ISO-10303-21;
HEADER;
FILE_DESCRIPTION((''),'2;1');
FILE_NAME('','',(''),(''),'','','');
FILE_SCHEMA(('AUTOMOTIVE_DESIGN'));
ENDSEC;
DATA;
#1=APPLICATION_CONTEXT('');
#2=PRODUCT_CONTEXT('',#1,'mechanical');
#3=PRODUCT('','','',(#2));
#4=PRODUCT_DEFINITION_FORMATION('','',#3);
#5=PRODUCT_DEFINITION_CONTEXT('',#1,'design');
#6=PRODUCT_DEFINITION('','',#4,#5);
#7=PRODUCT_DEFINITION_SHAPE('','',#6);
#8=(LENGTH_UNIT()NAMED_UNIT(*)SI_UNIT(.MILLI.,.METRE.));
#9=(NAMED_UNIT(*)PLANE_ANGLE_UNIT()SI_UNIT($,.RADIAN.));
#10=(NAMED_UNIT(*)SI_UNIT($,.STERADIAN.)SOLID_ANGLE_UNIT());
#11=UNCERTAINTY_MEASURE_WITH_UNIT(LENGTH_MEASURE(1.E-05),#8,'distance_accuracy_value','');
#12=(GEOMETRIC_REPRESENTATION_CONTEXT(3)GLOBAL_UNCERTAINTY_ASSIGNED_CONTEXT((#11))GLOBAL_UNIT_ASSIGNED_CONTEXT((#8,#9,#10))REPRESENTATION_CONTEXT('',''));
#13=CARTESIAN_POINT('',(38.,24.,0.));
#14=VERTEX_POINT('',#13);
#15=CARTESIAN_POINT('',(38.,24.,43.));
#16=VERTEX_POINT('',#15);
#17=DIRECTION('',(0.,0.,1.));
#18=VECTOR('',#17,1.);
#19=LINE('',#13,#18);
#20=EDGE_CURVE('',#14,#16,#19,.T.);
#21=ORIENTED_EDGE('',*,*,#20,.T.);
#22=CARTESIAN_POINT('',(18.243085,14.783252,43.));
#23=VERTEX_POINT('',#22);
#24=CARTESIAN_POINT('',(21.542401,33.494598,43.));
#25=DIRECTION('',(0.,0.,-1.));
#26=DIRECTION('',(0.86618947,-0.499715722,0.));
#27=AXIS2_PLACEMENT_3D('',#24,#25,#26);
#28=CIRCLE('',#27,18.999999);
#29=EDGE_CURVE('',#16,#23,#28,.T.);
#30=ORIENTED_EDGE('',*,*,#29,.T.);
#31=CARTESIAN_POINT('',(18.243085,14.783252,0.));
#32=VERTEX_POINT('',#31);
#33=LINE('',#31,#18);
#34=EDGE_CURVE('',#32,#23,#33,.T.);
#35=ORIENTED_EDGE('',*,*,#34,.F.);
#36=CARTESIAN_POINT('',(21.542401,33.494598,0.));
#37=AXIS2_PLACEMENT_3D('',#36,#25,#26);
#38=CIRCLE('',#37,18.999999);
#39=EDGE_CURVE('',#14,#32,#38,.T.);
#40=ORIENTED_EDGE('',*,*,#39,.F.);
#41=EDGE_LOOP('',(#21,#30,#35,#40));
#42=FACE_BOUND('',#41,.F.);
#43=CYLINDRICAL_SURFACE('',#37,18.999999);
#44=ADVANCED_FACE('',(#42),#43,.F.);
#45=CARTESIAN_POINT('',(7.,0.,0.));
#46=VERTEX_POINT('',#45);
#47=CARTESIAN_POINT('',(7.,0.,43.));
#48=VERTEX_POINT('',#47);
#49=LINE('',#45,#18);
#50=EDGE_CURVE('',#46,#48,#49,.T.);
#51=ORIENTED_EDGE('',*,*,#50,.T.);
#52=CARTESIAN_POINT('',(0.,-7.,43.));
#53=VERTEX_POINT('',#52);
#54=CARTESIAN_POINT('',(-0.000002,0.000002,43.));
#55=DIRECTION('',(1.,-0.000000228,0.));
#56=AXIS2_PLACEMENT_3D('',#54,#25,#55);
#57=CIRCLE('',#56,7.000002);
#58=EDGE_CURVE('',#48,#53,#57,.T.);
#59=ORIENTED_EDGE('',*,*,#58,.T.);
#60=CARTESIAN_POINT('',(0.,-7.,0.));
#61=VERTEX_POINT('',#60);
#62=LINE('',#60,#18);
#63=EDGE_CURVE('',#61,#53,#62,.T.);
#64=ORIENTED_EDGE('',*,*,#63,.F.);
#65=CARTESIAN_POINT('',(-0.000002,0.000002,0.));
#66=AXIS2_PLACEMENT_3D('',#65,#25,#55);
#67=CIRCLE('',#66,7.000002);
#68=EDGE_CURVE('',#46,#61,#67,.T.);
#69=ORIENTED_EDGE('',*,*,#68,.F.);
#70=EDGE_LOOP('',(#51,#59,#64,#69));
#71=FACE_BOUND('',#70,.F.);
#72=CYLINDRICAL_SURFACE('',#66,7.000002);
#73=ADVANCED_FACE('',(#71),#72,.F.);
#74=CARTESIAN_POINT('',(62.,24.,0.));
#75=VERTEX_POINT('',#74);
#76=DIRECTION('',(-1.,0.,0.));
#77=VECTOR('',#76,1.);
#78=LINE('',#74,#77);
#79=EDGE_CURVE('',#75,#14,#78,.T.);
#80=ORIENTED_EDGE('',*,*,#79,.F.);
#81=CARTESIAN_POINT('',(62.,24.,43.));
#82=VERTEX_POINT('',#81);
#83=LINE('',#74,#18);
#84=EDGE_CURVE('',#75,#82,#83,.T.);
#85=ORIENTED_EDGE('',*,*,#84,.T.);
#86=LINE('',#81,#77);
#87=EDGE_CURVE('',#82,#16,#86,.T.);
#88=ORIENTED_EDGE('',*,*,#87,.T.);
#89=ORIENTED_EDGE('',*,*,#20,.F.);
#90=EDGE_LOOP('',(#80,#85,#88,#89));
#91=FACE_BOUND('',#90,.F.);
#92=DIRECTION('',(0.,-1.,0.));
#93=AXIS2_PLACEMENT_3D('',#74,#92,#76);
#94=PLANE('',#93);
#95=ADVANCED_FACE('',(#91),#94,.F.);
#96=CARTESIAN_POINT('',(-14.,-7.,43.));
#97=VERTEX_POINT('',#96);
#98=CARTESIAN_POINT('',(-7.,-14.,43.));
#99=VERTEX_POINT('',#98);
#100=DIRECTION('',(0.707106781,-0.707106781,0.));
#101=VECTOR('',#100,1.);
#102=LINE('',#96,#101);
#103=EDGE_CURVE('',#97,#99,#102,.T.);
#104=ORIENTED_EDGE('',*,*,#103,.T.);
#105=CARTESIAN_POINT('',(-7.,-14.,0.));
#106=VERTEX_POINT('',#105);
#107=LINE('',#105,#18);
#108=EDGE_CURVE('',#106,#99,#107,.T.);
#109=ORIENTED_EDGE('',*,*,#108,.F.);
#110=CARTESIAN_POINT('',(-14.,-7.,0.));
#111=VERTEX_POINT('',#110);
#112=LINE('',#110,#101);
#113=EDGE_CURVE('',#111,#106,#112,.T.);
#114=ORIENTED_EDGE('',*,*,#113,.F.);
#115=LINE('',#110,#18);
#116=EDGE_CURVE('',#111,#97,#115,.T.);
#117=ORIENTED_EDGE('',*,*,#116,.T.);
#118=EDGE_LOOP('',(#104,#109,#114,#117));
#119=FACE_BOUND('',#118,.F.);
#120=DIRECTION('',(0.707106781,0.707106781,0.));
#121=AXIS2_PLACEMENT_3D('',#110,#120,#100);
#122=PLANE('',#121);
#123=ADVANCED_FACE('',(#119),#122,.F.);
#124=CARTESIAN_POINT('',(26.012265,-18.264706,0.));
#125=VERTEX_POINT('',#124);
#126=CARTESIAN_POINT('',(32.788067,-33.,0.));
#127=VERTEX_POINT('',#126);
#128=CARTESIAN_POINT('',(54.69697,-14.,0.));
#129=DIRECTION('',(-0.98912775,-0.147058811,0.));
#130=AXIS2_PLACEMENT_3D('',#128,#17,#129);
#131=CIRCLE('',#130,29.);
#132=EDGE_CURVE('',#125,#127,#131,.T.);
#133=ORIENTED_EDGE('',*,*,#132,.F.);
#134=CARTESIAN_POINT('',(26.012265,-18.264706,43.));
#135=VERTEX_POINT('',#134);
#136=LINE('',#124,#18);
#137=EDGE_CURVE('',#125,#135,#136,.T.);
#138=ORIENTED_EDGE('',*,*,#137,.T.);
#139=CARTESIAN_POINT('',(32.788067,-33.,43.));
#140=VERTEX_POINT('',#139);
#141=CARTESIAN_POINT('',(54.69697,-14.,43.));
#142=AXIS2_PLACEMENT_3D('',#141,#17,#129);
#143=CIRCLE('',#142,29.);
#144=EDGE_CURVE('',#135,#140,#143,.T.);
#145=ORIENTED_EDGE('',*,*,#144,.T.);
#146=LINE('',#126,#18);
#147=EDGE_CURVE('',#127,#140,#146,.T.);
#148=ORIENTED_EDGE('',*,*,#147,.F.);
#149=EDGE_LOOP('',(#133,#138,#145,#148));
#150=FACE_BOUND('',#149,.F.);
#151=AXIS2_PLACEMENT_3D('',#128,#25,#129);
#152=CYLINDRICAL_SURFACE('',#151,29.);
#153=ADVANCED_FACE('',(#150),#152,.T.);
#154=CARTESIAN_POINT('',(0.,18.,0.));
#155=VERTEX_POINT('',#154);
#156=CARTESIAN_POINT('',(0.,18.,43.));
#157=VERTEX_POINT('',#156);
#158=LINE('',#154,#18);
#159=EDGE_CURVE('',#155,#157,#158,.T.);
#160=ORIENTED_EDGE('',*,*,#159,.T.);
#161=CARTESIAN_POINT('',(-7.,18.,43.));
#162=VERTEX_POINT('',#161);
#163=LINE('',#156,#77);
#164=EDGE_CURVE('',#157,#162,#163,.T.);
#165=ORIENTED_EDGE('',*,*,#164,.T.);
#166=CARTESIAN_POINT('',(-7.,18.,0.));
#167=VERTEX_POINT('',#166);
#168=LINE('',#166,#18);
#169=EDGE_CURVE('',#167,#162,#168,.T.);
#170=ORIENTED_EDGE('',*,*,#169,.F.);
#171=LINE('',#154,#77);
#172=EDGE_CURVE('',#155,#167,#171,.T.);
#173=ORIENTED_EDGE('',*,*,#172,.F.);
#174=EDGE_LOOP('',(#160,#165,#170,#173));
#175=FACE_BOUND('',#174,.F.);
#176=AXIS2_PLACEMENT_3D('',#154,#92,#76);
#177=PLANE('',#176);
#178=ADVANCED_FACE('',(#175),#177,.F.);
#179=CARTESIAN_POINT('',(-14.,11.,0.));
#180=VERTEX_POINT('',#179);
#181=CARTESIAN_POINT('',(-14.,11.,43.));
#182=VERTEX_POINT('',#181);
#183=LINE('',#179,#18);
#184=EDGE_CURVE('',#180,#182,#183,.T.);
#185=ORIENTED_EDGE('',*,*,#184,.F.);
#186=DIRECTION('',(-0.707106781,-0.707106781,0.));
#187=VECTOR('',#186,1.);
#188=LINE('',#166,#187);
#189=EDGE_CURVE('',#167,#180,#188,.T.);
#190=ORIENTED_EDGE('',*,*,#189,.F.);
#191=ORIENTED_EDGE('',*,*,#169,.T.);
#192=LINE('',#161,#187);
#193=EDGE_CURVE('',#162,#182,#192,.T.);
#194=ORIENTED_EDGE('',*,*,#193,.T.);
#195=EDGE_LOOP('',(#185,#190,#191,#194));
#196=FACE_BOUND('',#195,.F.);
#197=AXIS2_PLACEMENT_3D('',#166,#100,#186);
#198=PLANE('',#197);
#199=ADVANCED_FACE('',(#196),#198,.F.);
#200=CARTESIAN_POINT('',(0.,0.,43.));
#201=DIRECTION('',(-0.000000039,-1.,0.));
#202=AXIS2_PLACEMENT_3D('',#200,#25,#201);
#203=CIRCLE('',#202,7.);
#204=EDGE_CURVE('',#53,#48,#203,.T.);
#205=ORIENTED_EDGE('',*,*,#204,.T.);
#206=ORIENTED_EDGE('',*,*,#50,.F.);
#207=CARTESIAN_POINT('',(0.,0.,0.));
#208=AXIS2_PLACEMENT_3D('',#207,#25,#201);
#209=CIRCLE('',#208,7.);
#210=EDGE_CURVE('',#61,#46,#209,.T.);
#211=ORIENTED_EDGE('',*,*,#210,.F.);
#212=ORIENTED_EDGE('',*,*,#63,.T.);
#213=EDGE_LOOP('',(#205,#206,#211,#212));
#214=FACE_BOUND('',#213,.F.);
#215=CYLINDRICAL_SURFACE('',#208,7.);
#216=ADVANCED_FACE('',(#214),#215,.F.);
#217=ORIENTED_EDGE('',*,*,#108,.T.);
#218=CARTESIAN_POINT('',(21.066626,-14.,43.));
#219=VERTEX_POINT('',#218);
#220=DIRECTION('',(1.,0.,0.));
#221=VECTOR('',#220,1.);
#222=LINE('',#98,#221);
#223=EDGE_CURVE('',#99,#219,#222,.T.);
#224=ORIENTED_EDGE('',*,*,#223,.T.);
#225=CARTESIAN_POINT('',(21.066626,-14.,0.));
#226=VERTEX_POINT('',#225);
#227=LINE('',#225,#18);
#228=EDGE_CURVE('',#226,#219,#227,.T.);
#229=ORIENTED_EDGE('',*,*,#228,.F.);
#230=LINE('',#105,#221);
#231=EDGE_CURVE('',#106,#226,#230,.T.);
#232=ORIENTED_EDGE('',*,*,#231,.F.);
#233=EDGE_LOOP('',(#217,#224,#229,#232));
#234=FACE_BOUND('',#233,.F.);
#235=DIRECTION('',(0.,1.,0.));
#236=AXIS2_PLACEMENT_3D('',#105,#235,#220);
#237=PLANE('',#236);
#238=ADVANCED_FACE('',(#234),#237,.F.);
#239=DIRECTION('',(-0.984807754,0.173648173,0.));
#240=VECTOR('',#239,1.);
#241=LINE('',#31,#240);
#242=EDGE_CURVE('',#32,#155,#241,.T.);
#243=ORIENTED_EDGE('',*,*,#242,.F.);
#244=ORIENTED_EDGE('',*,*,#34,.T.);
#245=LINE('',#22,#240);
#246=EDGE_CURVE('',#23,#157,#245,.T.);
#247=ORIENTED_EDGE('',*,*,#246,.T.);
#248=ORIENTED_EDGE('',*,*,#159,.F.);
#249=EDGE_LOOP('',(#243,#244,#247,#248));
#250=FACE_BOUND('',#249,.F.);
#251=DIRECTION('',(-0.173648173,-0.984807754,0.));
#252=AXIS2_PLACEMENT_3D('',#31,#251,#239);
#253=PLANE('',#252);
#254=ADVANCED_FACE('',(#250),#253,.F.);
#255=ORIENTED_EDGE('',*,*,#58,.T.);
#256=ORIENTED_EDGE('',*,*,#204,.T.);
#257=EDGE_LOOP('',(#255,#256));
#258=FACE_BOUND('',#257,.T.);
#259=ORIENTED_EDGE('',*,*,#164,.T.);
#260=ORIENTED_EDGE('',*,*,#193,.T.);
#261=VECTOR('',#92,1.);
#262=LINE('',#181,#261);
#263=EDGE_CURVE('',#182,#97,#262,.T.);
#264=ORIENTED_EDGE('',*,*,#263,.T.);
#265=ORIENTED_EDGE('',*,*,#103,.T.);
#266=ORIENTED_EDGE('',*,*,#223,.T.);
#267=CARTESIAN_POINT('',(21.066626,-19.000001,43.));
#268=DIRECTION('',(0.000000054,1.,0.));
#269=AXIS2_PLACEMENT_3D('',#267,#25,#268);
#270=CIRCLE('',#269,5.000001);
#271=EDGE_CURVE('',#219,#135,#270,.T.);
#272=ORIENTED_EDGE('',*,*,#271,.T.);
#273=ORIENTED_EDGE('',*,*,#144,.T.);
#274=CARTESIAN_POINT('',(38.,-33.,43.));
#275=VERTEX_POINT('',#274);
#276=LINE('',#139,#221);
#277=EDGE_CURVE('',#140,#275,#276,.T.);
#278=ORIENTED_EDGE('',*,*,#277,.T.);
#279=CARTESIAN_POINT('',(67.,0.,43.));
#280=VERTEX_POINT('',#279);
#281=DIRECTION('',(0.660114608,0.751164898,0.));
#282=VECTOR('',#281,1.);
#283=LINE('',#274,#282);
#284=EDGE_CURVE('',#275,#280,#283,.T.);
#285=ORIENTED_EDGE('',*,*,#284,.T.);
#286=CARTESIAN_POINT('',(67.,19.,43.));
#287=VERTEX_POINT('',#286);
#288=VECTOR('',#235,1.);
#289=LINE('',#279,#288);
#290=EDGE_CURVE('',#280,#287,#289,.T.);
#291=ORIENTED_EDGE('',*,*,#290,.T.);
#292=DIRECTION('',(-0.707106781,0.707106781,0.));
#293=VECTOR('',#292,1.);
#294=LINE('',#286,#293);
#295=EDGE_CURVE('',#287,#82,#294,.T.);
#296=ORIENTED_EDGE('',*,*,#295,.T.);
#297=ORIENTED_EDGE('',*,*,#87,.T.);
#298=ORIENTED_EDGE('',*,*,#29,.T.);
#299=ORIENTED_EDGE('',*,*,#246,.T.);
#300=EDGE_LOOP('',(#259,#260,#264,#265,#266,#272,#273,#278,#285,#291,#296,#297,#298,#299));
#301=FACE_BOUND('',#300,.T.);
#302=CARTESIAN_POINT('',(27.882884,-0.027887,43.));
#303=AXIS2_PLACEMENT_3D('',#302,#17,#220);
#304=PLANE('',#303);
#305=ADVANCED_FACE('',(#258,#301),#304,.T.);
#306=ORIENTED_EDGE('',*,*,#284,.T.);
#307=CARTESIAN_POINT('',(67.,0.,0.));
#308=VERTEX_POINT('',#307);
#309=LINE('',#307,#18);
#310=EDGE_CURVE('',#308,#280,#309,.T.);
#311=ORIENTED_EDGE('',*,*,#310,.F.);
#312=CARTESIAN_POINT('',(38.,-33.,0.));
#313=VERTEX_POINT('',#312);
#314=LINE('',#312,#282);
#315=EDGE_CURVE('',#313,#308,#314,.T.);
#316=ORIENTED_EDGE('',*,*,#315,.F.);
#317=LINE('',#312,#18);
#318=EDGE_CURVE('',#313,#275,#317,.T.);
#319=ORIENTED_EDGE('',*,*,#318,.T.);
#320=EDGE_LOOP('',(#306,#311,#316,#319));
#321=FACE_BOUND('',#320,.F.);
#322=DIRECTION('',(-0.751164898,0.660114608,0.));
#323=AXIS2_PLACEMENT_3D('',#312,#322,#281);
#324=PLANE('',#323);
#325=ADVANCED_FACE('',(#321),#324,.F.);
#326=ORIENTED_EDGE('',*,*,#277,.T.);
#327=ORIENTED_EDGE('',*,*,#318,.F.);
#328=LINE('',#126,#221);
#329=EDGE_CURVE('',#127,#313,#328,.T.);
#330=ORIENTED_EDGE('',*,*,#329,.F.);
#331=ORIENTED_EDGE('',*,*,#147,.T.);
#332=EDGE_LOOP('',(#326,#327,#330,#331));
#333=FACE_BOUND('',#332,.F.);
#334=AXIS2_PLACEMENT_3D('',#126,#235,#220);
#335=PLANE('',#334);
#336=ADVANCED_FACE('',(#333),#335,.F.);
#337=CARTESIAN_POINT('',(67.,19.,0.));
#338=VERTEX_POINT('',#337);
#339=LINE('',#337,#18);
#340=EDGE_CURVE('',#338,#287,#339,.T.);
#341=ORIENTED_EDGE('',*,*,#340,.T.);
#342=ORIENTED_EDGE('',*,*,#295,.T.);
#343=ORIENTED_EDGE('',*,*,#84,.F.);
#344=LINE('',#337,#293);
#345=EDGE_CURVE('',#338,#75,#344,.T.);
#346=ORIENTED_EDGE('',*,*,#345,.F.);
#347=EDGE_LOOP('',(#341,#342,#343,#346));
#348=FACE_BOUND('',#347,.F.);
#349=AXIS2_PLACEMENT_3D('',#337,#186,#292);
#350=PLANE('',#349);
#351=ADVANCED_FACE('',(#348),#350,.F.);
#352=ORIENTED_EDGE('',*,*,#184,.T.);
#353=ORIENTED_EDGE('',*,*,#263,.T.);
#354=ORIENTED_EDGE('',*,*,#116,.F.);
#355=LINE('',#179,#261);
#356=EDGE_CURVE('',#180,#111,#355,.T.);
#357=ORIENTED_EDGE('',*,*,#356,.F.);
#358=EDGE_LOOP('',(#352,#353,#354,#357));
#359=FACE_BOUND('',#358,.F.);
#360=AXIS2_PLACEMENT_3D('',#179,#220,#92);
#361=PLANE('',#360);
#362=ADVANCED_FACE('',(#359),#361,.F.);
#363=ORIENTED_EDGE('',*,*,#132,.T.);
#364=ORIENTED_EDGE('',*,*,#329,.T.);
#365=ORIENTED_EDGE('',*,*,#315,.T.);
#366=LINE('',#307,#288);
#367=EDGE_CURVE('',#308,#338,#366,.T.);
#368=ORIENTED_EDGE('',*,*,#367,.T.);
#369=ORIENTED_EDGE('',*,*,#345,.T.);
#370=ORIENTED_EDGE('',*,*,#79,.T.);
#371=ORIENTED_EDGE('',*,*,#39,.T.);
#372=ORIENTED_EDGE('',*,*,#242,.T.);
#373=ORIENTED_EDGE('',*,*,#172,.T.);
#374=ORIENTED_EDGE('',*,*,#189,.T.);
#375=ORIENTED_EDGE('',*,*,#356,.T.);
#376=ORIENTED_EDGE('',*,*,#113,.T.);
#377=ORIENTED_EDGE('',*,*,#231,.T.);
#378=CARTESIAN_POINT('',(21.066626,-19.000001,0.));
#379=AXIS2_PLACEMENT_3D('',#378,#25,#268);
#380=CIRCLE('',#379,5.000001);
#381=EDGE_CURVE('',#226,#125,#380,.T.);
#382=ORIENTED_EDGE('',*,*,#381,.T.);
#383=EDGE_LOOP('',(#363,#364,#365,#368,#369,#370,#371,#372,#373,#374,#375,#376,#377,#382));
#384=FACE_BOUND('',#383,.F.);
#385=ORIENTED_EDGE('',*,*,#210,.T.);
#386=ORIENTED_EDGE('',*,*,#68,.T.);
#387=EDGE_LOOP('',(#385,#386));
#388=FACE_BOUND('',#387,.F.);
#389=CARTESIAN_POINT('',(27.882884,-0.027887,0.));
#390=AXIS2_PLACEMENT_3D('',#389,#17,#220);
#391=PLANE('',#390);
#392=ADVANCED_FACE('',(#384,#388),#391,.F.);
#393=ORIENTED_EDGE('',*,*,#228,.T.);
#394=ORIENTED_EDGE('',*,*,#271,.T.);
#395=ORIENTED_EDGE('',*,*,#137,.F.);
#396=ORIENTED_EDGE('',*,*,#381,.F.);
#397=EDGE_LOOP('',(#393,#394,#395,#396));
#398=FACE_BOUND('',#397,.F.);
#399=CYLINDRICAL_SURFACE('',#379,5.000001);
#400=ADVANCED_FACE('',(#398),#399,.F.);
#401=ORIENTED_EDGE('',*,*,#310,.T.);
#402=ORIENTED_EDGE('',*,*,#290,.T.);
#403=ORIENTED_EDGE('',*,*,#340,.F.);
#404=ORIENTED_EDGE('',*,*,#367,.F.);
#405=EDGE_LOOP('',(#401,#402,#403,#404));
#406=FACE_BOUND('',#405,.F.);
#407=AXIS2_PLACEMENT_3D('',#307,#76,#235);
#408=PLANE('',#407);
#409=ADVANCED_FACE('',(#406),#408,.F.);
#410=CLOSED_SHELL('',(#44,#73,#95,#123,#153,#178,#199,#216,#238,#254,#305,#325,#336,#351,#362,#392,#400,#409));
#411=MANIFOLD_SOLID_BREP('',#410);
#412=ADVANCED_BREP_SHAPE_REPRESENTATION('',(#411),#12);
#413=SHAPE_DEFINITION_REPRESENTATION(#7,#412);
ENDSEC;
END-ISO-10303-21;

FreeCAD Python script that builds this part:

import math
import FreeCAD as App
import Part
import Sketcher
Q = App.Units.Quantity

doc = App.newDocument("Part")
params = doc.addObject("Spreadsheet::Sheet", "Params")
for row, (alias, value) in enumerate([
    ("sketch1_radius", "5.000001 mm"),
    ("sketch1_radius2", "29 mm"),
    ("sketch1_radius3", "18.999999 mm"),
    ("sketch1_radius4", "7 mm"),
    ("sketch1_width", "24 mm"),
    ("pad1_length", "43 mm"),
], start=1):
    params.set(f"A{row}", alias)
    params.set(f"B{row}", "=" + value)
    params.setAlias(f"B{row}", alias)

body = doc.addObject("PartDesign::Body", "Body")

sketch1 = body.newObject("Sketcher::SketchObject", "Sketch")
sketch1.AttachmentSupport = (doc.getObject("XY_Plane"), [""])
sketch1.MapMode = "FlatFace"
sketch1.addGeometry([
    Part.LineSegment(App.Vector(-14, 11, 0), App.Vector(-14, -7, 0)),
    Part.LineSegment(App.Vector(-14, -7, 0), App.Vector(-7, -14, 0)),
    Part.LineSegment(App.Vector(-7, -14, 0), App.Vector(21, -14, 0)),
    Part.ArcOfCircle(Part.Circle(App.Vector(21, -19, 0), App.Vector(0, 0, 1), 5), math.radians(8), math.radians(90)),
    Part.ArcOfCircle(Part.Circle(App.Vector(55, -14, 0), App.Vector(0, 0, 1), 29), math.radians(-172), math.radians(-139)),
    Part.LineSegment(App.Vector(33, -33, 0), App.Vector(38, -33, 0)),
    Part.LineSegment(App.Vector(38, -33, 0), App.Vector(67, 0, 0)),
    Part.LineSegment(App.Vector(67, 0, 0), App.Vector(67, 19, 0)),
    Part.LineSegment(App.Vector(67, 19, 0), App.Vector(62, 24, 0)),
    Part.LineSegment(App.Vector(62, 24, 0), App.Vector(38, 24, 0)),
    Part.ArcOfCircle(Part.Circle(App.Vector(22, 33, 0), App.Vector(0, 0, 1), 19), math.radians(-100), math.radians(-30)),
    Part.LineSegment(App.Vector(18, 15, 0), App.Vector(0, 18, 0)),
    Part.LineSegment(App.Vector(0, 18, 0), App.Vector(-7, 18, 0)),
    Part.LineSegment(App.Vector(-7, 18, 0), App.Vector(-14, 11, 0)),
    Part.ArcOfCircle(Part.Circle(App.Vector(0, 0, 0), App.Vector(0, 0, 1), 7), math.radians(0), math.radians(270)),
    Part.ArcOfCircle(Part.Circle(App.Vector(0, 0, 0), App.Vector(0, 0, 1), 7), math.radians(-90), math.radians(0)),
], False)
sketch1.addConstraint([
    Sketcher.Constraint("Coincident", 0, 2, 1, 1),
    Sketcher.Constraint("Coincident", 1, 2, 2, 1),
    Sketcher.Constraint("Tangent", 2, 2, 3, 2),
    Sketcher.Constraint("Tangent", 3, 1, 4, 1),
    Sketcher.Constraint("Coincident", 4, 2, 5, 1),
    Sketcher.Constraint("Coincident", 5, 2, 6, 1),
    Sketcher.Constraint("Coincident", 6, 2, 7, 1),
    Sketcher.Constraint("Coincident", 7, 2, 8, 1),
    Sketcher.Constraint("Coincident", 8, 2, 9, 1),
    Sketcher.Constraint("Coincident", 9, 2, 10, 2),
    Sketcher.Constraint("Tangent", 10, 1, 11, 1),
    Sketcher.Constraint("Coincident", 11, 2, 12, 1),
    Sketcher.Constraint("Coincident", 12, 2, 13, 1),
    Sketcher.Constraint("Coincident", 13, 2, 0, 1),
    Sketcher.Constraint("Tangent", 14, 1, 15, 2),
    Sketcher.Constraint("Coincident", 15, 1, 14, 2),
    Sketcher.Constraint("Vertical", 0),
    Sketcher.Constraint("Horizontal", 2),
    Sketcher.Constraint("Horizontal", 5),
    Sketcher.Constraint("Vertical", 7),
    Sketcher.Constraint("Horizontal", 9),
    Sketcher.Constraint("Horizontal", 12),
    Sketcher.Constraint("Coincident", 14, 3, -1, 1),
    Sketcher.Constraint("PointOnObject", 6, 2, -1),
    Sketcher.Constraint("PointOnObject", 11, 2, -2),
    Sketcher.Constraint("PointOnObject", 14, 1, -1),
    Sketcher.Constraint("PointOnObject", 15, 1, -2),
    Sketcher.Constraint("Parallel", 1, 8),
    Sketcher.Constraint("Perpendicular", 8, 13),
    Sketcher.Constraint("Horizontal", 4, 3, 1, 2),
    Sketcher.Constraint("Horizontal", 0, 2, 15, 1),
    Sketcher.Constraint("Vertical", 5, 2, 9, 2),
    Sketcher.Constraint("Vertical", 1, 2, 12, 2),
    Sketcher.Constraint("Equal", 1, 13),
    Sketcher.Constraint("Radius", 3, 5.000001),
    Sketcher.Constraint("Radius", 4, 29.0),
    Sketcher.Constraint("Radius", 10, 18.999999),
    Sketcher.Constraint("Radius", 14, 7.0),
    Sketcher.Constraint("DistanceX", 9, 2, 9, 1, 24.0),
    Sketcher.Constraint("DistanceX", 12, 2, 12, 1, 7.0),
    Sketcher.Constraint("DistanceY", 0, 2, 0, 1, 18.0),
    Sketcher.Constraint("DistanceY", 7, 1, 7, 2, 19.0),
    Sketcher.Constraint("Angle", 11, Q("170 deg")),
    Sketcher.Constraint("DistanceY", 3, 3, -1, 1, 19.000001),
    Sketcher.Constraint("DistanceY", 4, 2, -1, 1, 33.0),
    Sketcher.Constraint("DistanceX", -1, 1, 5, 2, 38.0),
    Sketcher.Constraint("DistanceX", -1, 1, 6, 2, 67.0),
    Sketcher.Constraint("DistanceX", 2, 1, 2, 2, 28.066626),
])
sketch1.setExpression("Constraints[34]", "Params.sketch1_radius")
sketch1.setExpression("Constraints[35]", "Params.sketch1_radius2")
sketch1.setExpression("Constraints[36]", "Params.sketch1_radius3")
sketch1.setExpression("Constraints[37]", "Params.sketch1_radius4")
sketch1.setExpression("Constraints[38]", "Params.sketch1_width")
pad1 = body.newObject("PartDesign::Pad", "Pad")
pad1.Profile = sketch1
pad1.setExpression("Length", "Params.pad1_length")

doc.recompute()
